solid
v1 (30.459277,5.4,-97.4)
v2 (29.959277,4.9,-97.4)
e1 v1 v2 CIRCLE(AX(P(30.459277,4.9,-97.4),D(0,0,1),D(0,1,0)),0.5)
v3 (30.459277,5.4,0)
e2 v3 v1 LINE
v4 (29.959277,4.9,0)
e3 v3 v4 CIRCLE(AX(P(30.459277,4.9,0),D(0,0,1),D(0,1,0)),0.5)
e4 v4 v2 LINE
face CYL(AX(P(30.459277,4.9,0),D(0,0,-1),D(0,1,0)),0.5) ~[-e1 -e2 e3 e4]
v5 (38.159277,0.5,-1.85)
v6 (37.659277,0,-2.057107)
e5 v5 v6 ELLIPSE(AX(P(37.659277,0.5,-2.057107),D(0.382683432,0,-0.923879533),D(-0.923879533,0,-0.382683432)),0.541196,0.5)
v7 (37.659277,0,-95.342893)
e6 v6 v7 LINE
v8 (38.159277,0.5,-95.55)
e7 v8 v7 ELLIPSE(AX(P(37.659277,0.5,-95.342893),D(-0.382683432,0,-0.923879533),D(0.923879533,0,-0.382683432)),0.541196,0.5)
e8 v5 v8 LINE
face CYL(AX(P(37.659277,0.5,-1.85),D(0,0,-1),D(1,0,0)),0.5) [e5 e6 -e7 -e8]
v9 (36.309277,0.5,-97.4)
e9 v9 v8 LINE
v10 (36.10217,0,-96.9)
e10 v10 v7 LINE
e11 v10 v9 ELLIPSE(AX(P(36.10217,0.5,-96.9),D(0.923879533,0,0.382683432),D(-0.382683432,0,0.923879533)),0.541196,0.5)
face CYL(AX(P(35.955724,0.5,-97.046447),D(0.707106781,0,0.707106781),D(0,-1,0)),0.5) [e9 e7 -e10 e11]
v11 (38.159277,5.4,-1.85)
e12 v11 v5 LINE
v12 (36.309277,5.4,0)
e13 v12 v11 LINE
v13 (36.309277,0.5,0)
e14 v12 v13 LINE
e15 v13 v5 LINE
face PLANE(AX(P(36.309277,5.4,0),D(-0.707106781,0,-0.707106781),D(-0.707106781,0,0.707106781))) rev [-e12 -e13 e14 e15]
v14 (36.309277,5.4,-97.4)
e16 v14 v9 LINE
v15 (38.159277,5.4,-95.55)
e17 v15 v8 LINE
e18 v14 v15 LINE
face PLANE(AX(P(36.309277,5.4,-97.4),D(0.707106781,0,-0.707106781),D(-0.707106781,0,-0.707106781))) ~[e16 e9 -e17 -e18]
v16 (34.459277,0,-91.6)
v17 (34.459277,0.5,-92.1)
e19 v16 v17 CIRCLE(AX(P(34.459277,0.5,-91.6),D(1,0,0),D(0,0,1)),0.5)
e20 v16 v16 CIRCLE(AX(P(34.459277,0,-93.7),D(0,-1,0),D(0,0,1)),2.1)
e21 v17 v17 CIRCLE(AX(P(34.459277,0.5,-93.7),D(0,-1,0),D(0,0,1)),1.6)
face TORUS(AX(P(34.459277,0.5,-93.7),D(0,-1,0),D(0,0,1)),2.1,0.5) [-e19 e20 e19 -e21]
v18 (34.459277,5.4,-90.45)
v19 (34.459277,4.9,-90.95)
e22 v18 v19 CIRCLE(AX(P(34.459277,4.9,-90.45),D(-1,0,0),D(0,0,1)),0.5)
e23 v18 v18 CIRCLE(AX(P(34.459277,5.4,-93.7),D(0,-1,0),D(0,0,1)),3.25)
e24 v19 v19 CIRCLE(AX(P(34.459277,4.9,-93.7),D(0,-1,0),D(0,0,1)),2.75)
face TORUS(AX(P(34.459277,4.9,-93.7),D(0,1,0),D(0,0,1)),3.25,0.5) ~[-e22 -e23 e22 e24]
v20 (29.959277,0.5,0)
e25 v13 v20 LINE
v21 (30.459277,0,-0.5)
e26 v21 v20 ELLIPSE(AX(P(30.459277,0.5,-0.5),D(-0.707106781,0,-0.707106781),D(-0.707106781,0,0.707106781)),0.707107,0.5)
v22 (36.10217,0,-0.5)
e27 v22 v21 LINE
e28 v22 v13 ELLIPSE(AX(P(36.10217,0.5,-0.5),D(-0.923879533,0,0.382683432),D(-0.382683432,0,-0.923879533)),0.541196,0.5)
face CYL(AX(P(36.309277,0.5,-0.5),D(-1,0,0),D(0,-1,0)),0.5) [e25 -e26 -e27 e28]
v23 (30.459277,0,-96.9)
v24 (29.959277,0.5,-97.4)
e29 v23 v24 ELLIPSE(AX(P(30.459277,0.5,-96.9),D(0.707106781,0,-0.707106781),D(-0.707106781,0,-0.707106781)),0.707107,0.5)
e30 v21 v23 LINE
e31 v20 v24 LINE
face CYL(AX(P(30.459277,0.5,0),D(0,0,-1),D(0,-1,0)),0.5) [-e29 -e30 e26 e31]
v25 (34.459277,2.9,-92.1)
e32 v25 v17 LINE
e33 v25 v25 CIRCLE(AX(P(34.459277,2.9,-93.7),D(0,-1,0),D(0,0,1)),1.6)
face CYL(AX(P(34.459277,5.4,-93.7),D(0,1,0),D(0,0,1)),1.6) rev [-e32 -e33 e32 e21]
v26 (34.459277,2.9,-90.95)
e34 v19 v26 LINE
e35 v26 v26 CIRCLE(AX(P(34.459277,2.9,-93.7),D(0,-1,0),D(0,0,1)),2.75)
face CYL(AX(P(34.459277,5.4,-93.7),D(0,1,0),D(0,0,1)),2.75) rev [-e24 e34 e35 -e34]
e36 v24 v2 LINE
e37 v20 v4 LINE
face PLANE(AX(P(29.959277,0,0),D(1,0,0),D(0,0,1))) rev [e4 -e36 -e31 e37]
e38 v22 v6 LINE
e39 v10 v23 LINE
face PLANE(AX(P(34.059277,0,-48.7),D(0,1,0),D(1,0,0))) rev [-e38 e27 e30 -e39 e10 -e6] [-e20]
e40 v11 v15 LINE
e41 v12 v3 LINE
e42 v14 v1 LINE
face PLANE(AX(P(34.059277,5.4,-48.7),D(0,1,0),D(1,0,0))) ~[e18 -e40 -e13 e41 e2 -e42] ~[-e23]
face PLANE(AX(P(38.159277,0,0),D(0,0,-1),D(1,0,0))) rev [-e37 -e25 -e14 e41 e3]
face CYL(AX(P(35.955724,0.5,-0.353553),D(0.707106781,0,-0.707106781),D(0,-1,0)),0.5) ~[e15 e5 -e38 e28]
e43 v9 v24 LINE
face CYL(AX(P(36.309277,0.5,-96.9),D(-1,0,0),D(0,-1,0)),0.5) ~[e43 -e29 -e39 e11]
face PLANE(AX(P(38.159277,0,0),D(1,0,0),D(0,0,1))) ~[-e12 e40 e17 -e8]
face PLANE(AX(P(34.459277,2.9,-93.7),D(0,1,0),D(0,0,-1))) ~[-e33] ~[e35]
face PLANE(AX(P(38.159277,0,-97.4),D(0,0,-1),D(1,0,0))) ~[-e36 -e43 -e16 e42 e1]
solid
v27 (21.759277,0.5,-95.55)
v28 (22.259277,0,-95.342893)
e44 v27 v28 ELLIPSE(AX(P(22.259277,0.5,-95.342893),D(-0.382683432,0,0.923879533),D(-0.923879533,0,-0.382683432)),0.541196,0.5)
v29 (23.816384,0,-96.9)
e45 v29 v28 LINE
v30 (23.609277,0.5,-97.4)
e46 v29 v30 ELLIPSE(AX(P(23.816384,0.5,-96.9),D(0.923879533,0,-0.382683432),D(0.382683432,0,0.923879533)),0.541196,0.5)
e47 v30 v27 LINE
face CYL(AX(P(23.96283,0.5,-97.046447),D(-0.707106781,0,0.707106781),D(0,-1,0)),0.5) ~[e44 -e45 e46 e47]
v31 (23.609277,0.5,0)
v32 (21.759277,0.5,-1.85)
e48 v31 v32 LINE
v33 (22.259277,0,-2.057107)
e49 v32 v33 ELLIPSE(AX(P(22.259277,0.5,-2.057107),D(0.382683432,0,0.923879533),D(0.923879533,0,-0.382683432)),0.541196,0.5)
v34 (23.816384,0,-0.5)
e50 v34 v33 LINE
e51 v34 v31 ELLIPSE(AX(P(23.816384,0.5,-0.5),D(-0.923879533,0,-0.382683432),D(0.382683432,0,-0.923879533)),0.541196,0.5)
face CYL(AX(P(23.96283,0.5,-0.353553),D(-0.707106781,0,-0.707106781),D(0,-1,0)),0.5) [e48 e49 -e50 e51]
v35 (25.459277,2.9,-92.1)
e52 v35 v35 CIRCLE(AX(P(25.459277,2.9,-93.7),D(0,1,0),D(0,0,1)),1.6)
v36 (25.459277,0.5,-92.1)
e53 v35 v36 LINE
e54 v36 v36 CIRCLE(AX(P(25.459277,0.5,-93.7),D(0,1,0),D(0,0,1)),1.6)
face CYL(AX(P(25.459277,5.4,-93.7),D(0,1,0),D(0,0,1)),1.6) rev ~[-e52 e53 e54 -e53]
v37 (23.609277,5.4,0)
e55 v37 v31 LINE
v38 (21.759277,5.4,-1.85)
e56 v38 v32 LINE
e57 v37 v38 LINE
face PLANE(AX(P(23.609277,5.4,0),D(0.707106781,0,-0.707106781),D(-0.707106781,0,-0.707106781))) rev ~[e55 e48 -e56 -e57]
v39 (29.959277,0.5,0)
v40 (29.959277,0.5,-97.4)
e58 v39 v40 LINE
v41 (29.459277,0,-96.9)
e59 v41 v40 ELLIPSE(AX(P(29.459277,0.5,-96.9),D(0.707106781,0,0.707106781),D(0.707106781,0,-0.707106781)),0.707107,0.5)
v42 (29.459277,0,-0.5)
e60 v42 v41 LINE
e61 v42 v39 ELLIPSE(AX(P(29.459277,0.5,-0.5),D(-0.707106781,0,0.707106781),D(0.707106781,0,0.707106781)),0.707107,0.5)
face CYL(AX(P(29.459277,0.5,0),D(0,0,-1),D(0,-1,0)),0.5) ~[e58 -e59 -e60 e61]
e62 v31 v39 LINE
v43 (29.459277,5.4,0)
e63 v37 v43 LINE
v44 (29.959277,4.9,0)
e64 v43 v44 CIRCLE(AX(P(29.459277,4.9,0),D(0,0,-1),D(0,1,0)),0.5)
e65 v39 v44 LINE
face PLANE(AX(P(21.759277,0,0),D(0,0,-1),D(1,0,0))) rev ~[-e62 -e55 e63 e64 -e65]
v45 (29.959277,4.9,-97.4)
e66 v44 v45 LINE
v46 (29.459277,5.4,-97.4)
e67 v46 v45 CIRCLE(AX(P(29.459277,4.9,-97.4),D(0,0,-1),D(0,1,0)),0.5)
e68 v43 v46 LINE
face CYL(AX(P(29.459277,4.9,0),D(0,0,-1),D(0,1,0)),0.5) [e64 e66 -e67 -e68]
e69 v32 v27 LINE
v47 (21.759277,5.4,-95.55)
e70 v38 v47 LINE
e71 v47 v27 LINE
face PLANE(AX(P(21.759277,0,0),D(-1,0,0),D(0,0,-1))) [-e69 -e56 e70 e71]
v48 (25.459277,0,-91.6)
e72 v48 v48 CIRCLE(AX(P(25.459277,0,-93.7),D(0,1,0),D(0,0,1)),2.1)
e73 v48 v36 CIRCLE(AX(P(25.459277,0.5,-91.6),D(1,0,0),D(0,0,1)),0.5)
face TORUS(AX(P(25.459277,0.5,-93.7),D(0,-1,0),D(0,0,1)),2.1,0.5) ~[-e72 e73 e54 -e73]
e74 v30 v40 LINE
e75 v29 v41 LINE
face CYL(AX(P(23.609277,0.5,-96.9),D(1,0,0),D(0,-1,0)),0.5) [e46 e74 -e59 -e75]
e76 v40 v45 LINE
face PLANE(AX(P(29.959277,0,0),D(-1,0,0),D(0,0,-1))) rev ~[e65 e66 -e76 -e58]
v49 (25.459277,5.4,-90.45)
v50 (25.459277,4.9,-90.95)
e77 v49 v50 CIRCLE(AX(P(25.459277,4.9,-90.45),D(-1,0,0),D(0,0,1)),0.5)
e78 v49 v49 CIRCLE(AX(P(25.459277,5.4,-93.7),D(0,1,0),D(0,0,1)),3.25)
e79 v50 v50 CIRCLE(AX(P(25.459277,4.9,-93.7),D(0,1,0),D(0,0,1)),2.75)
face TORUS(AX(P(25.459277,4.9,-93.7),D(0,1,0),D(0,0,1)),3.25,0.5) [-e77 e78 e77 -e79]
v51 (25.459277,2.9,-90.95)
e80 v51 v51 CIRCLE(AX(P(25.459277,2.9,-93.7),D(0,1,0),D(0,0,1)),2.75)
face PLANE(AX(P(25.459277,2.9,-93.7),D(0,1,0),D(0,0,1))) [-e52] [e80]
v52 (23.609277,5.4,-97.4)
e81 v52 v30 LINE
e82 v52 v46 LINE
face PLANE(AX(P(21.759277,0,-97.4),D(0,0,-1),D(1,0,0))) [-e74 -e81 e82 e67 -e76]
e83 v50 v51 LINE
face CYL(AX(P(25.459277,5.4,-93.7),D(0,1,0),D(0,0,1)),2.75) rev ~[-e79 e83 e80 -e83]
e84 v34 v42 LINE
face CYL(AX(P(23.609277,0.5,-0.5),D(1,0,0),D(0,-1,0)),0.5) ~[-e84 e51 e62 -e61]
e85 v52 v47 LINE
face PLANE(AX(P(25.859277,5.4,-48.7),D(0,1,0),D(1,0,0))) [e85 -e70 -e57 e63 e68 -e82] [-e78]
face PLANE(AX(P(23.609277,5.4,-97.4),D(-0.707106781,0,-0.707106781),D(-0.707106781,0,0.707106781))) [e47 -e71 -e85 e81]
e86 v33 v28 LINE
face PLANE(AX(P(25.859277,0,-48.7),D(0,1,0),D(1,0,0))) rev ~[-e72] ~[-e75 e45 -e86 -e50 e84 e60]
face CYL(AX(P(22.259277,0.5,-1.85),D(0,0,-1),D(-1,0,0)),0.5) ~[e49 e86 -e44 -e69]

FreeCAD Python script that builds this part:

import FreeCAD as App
import Part
import Sketcher


def edges_at(feature, points):
    """Names of the edges that pass closest to the given points."""
    edges = feature.Shape.Edges
    near = lambda p: min(range(len(edges)), key=lambda i: edges[i].distToShape(Part.Vertex(*p))[0])
    return sorted({f"Edge{near(p) + 1}" for p in points})


def add_polygon(sketch, points):
    """Adds a closed chain of lines whose ends are joined by coincident constraints."""
    first, n = sketch.GeometryCount, len(points)
    for a, b in zip(points, points[1:] + points[:1]):
        sketch.addGeometry(Part.LineSegment(App.Vector(*a, 0), App.Vector(*b, 0)), False)
    for i in range(n):
        sketch.addConstraint(Sketcher.Constraint("Coincident", first + i, 2, first + (i + 1) % n, 1))

doc = App.newDocument("Part")
params = doc.addObject("Spreadsheet::Sheet", "Params")
for row, (alias, value) in enumerate([
    ("sketch1_width", "8.2 mm"),
    ("sketch1_height", "97.4 mm"),
    ("pad1_length", "5.4 mm"),
    ("sketch2_diameter", "3.2 mm"),
    ("sketch2_width", "1.85 mm"),
    ("fillet_radius", "0.5 mm"),
    ("fillet2_radius", "0.5 mm"),
    ("sketch3_diameter", "5.5 mm"),
    ("pocket2_length", "2.5 mm"),
    ("fillet3_radius", "0.5 mm"),
], start=1):
    params.set(f"A{row}", alias)
    params.set(f"B{row}", "=" + value)
    params.setAlias(f"B{row}", alias)

body = doc.addObject("PartDesign::Body", "Body")

# Sketch on XZ plane
sketch1 = doc.addObject("Sketcher::SketchObject", "Sketch")
body.addObject(sketch1)
sketch1.AttachmentSupport = (doc.XZ_Plane, [""])
sketch1.MapMode = "FlatFace"
add_polygon(sketch1, [(22, -97), (22, 0), (30, 0), (30, -97)])  # lines 0-3
sketch1.addConstraint([
    Sketcher.Constraint("Vertical", 0),
    Sketcher.Constraint("Horizontal", 1),
    Sketcher.Constraint("Vertical", 2),
    Sketcher.Constraint("Horizontal", 3),
    Sketcher.Constraint("PointOnObject", 0, 2, -1),
    Sketcher.Constraint("DistanceX", 1, 1, 1, 2, 8.2),
    Sketcher.Constraint("DistanceY", 0, 1, 0, 2, 97.4),
    Sketcher.Constraint("DistanceX", -1, 1, 0, 2, 21.759277),
])
sketch1.setExpression("Constraints[9]", "Params.sketch1_width")
sketch1.setExpression("Constraints[10]", "Params.sketch1_height")
pad1 = doc.addObject("PartDesign::Pad", "Pad")
body.addObject(pad1)
pad1.Profile = sketch1
pad1.setExpression("Length", "Params.pad1_length")
pad1.Reversed = True

# Sketch on XZ plane
sketch2 = doc.addObject("Sketcher::SketchObject", "Sketch001")
body.addObject(sketch2)
sketch2.AttachmentSupport = (doc.XZ_Plane, [""])
sketch2.MapMode = "FlatFace"
sketch2.AttachmentOffset = App.Placement(App.Vector(0, 0, -5.4), App.Rotation())
sketch2.addGeometry(Part.Circle(App.Vector(25.5, -93.7, 0), App.Vector(0, 0, 1), 1.6), False)  # 0
add_polygon(sketch2, [(23.6, -97.4), (21.8, -97.4), (21.8, -95.5)])  # lines 1-3
add_polygon(sketch2, [(21.8, 0), (23.6, 0), (21.8, -1.9)])  # lines 4-6
sketch2.addConstraint([
    Sketcher.Constraint("Horizontal", 1),
    Sketcher.Constraint("Vertical", 2),
    Sketcher.Constraint("Horizontal", 4),
    Sketcher.Constraint("Vertical", 6),
    Sketcher.Constraint("PointOnObject", 4, 2, -1),
    Sketcher.Constraint("Perpendicular", 3, 5),
    Sketcher.Constraint("Vertical", 3, 2, 4, 2),
    Sketcher.Constraint("Vertical", 2, 2, 5, 2),
    Sketcher.Constraint("Equal", 4, 2),
    Sketcher.Constraint("Diameter", 0, 3.2),
    Sketcher.Constraint("DistanceX", 1, 2, 1, 1, 1.85),
    Sketcher.Constraint("DistanceY", 0, 3, -1, 1, 93.7),
    Sketcher.Constraint("DistanceY", 1, 2, -1, 1, 97.4),
    Sketcher.Constraint("DistanceX", 1, 2, 0, 3, 3.7),
    Sketcher.Constraint("DistanceX", -1, 1, 0, 3, 25.459277),
])
sketch2.setExpression("Constraints[15]", "Params.sketch2_diameter")
sketch2.setExpression("Constraints[16]", "Params.sketch2_width")
pocket1 = doc.addObject("PartDesign::Pocket", "Pocket")
body.addObject(pocket1)
pocket1.Profile = sketch2
pocket1.Type = "ThroughAll"
pocket1.Reversed = True
doc.recompute()

fillet = doc.addObject("PartDesign::Fillet", "Fillet")
body.addObject(fillet)
fillet.Base = (pocket1, edges_at(pocket1, [
    (21.759, 0, -48.7),
    (26.784, 0, 0),
    (22.684, 0, -96.475),
    (22.684, 0, -0.925),
    (25.459, 0, -95.3),
    (26.784, 0, -97.4),
    (29.959, 0, -48.7),
]))
fillet.setExpression("Radius", "Params.fillet_radius")
doc.recompute()

fillet2 = doc.addObject("PartDesign::Fillet", "Fillet001")
body.addObject(fillet2)
fillet2.Base = (fillet, edges_at(fillet, [(29.959, 5.4, -48.7)]))
fillet2.setExpression("Radius", "Params.fillet2_radius")

# Sketch on XZ plane
sketch3 = doc.addObject("Sketcher::SketchObject", "Sketch002")
body.addObject(sketch3)
sketch3.AttachmentSupport = (doc.XZ_Plane, [""])
sketch3.MapMode = "FlatFace"
sketch3.AttachmentOffset = App.Placement(App.Vector(0, 0, -5.4), App.Rotation())
sketch3.addGeometry(Part.Circle(App.Vector(25.5, -93.7, 0), App.Vector(0, 0, 1), 2.8), False)
sketch3.addConstraint([
    Sketcher.Constraint("Diameter", 0, 5.5),
    Sketcher.Constraint("DistanceY", 0, 3, -1, 1, 93.7),
    Sketcher.Constraint("DistanceX", -1, 1, 0, 3, 25.459277),
])
sketch3.setExpression("Constraints[0]", "Params.sketch3_diameter")
pocket2 = doc.addObject("PartDesign::Pocket", "Pocket001")
body.addObject(pocket2)
pocket2.Profile = sketch3
pocket2.setExpression("Length", "Params.pocket2_length")
pocket2.Reversed = True
doc.recompute()

fillet3 = doc.addObject("PartDesign::Fillet", "Fillet002")
body.addObject(fillet3)
fillet3.Base = (pocket2, edges_at(pocket2, [(25.459, 5.4, -96.45)]))
fillet3.setExpression("Radius", "Params.fillet3_radius")
body2 = doc.addObject("PartDesign::Body", "Body001")
doc.recompute()

mirroring = doc.addObject("Part::Mirroring", "Mirroring")
mirroring.Source = body
mirroring.Base = App.Vector(29.959277, 5.4, 0)
mirroring.Normal = App.Vector(-1, 0, 0)
body2.BaseFeature = mirroring
doc.recompute()
mirroring.Visibility = False

doc.recompute()
